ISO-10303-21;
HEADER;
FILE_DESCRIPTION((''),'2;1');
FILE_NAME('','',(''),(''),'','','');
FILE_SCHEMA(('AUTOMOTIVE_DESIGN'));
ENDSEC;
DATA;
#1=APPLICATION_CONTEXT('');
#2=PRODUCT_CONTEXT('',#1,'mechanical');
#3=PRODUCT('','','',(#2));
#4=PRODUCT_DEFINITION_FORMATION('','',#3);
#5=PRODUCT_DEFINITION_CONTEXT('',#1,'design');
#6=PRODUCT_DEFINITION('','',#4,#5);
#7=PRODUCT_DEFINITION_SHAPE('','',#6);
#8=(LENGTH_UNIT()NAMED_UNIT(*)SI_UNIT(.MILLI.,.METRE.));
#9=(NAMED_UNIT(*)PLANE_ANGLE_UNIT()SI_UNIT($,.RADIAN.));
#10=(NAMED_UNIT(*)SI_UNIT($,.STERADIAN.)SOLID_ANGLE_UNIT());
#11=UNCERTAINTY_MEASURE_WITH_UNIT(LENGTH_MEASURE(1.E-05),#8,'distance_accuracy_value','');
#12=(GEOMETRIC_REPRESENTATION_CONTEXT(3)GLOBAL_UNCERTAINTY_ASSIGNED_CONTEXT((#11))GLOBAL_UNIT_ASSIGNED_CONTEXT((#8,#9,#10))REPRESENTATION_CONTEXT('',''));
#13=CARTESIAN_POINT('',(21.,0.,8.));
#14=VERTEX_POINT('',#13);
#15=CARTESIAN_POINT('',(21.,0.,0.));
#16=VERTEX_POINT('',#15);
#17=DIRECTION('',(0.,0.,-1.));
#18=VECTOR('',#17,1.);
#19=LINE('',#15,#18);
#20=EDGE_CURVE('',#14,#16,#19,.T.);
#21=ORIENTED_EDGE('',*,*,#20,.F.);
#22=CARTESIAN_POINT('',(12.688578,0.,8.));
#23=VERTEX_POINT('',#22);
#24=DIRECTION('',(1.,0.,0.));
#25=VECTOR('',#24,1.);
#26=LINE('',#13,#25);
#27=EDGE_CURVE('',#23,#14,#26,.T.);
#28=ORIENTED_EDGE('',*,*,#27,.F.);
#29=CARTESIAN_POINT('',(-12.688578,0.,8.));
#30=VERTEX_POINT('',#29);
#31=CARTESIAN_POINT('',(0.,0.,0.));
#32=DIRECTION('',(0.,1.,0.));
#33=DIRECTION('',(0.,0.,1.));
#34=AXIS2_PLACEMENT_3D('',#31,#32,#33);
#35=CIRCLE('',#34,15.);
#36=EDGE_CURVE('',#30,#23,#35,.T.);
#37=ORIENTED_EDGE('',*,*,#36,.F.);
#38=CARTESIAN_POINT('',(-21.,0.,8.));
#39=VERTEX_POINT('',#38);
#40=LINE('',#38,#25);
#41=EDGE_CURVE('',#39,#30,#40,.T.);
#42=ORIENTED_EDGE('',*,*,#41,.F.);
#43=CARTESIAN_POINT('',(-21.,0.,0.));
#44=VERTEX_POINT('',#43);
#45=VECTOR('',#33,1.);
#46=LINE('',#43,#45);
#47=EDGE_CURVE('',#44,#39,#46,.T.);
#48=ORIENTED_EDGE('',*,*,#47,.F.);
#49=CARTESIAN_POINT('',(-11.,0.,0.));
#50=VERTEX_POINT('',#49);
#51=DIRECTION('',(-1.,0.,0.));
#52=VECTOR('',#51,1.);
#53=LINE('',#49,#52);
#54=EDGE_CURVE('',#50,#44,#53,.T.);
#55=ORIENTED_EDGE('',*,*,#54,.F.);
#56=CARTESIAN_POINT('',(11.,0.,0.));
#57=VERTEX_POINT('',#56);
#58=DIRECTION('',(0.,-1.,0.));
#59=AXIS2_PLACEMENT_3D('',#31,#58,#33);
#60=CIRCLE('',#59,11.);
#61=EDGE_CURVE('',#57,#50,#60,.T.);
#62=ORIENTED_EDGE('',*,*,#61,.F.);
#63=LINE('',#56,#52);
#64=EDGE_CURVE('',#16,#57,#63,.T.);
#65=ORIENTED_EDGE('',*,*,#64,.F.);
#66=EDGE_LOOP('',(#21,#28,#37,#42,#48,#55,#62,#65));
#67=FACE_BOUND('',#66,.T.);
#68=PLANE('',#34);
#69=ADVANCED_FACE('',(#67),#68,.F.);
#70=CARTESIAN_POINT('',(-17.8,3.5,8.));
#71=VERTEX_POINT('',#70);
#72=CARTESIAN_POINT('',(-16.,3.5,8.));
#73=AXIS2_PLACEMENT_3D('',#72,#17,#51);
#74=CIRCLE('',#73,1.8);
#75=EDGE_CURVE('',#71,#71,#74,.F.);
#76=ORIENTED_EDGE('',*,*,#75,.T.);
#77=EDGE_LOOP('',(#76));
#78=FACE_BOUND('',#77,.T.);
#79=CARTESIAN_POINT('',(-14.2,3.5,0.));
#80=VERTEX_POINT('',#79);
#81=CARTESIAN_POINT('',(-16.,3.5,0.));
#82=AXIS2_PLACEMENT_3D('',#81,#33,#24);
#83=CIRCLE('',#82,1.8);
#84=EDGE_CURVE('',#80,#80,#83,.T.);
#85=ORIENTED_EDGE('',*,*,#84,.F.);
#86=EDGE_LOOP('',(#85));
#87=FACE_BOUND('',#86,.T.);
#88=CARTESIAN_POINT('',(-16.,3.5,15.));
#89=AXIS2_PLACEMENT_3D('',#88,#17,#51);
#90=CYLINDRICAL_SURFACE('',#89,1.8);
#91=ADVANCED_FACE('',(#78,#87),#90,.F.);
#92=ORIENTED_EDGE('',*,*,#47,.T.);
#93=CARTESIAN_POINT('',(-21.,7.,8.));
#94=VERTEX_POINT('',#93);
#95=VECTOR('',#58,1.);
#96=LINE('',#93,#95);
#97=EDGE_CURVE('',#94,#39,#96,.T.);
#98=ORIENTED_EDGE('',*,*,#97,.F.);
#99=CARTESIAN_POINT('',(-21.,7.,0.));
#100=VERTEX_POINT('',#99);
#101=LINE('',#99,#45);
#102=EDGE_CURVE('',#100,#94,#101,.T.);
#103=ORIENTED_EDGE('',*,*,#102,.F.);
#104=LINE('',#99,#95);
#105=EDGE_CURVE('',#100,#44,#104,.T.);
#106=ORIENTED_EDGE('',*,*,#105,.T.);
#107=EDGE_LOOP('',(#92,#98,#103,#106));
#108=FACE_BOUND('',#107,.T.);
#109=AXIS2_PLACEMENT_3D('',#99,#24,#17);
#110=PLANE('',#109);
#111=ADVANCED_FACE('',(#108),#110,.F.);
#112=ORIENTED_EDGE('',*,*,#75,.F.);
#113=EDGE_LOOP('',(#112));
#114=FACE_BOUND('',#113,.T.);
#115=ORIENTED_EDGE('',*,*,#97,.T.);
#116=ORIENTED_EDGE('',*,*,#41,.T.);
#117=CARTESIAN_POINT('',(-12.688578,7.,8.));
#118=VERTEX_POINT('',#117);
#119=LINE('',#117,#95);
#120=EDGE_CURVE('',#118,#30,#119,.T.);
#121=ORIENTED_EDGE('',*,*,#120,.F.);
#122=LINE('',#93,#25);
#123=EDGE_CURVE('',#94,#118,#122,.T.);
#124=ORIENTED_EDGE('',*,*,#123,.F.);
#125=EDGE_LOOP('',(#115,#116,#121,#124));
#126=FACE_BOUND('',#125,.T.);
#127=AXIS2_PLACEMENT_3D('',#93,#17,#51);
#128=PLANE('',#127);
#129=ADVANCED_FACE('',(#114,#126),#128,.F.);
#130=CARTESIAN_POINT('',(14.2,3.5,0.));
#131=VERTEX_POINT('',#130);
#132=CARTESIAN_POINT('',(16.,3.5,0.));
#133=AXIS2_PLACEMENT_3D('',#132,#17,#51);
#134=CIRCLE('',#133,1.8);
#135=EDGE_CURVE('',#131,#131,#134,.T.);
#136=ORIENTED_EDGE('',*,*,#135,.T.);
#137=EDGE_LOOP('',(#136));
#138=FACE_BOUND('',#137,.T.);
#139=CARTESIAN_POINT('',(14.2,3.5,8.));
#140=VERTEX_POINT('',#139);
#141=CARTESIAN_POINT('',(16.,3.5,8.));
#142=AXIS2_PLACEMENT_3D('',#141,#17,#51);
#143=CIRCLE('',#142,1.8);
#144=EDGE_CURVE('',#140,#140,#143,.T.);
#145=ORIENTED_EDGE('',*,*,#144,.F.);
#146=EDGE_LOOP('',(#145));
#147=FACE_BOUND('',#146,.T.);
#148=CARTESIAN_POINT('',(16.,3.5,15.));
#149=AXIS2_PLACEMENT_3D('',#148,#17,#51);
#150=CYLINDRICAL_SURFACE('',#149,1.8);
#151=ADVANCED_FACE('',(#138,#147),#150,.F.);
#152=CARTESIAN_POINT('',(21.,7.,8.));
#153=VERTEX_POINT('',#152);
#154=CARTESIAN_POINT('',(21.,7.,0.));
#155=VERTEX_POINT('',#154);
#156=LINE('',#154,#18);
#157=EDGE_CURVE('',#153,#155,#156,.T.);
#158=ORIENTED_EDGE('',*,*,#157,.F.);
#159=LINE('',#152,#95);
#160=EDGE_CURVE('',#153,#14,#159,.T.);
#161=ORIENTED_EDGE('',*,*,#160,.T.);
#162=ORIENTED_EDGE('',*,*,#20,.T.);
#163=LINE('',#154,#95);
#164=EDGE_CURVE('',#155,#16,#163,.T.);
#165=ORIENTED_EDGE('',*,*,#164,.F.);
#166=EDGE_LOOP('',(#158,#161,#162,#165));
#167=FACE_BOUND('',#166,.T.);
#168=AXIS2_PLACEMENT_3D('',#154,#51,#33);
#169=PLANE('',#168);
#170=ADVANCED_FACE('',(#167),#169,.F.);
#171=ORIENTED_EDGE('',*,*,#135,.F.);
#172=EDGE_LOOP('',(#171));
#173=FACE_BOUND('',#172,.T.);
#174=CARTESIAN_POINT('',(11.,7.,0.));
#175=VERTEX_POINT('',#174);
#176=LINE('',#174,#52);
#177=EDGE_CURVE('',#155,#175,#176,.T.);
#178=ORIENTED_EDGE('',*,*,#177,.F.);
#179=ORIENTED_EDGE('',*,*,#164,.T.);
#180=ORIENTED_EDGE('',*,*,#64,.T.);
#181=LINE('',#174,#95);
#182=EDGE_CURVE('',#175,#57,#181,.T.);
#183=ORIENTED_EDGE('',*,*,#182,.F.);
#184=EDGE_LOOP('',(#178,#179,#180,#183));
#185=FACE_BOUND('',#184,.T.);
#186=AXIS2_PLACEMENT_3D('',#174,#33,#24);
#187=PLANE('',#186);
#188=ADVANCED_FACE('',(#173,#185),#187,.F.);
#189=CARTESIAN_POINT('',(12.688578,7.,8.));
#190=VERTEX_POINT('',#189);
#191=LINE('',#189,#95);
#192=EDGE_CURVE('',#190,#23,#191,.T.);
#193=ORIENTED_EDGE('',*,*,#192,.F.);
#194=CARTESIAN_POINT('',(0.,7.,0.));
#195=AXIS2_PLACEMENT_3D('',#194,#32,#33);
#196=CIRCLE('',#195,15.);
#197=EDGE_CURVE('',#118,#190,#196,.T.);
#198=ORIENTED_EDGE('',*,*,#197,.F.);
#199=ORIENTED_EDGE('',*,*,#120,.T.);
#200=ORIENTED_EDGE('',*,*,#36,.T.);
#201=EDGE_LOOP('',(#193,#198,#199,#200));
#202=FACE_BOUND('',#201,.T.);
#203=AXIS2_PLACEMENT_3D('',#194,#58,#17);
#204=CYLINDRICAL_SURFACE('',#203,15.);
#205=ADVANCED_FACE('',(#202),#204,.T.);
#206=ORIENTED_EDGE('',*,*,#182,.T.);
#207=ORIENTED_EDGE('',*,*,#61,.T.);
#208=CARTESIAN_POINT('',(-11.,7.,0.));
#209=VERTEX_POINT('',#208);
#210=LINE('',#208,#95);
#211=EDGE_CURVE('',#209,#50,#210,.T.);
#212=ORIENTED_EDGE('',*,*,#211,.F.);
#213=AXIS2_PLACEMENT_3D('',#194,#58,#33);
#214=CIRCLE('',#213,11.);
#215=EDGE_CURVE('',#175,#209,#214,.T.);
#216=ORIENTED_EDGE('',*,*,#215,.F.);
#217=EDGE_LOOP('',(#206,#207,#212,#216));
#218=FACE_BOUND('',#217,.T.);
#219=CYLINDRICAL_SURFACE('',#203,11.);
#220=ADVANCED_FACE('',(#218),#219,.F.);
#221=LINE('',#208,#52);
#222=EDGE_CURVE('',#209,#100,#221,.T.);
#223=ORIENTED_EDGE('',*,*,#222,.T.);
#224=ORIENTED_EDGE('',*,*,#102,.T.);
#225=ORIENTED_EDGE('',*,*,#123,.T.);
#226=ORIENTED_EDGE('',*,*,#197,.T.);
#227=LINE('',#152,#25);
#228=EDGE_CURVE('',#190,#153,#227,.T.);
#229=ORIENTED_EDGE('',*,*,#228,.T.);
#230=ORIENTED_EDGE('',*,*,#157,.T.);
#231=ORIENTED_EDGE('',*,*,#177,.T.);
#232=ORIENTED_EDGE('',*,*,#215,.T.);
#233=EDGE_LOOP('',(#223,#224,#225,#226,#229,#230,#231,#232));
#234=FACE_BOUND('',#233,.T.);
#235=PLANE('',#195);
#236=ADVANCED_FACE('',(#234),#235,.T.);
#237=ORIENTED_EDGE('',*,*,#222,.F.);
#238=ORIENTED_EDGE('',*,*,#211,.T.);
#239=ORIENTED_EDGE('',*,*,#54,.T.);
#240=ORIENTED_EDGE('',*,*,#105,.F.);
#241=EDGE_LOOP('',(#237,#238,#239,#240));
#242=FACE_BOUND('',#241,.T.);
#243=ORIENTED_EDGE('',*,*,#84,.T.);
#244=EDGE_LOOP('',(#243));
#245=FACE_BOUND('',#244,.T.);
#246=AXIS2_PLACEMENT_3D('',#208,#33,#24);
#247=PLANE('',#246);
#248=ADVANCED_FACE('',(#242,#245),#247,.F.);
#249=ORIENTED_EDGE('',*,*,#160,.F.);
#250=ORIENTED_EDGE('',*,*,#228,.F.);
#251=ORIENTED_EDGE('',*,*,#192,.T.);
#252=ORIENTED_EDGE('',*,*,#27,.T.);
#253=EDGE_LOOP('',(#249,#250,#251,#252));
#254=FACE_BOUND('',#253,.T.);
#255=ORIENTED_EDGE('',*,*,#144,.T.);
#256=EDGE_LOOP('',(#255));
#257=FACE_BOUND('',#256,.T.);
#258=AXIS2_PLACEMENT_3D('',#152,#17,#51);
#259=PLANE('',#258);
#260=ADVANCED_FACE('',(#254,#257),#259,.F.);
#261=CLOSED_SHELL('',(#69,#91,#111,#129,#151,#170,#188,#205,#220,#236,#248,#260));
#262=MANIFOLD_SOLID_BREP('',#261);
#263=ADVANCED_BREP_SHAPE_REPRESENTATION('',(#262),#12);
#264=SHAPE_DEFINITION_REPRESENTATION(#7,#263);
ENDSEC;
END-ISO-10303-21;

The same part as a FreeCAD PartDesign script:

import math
import FreeCAD as App
import Part
import Sketcher

doc = App.newDocument("Part")
params = doc.addObject("Spreadsheet::Sheet", "Params")
for row, (alias, value) in enumerate([
    ("sketch1_radius", "15 mm"),
    ("sketch1_radius2", "11 mm"),
    ("sketch1_width", "10 mm"),
    ("sketch1_height", "8 mm"),
    ("pad1_length", "7 mm"),
    ("sketch2_diameter", "3.6 mm"),
    ("pocket1_length", "55.478968 mm"),
], start=1):
    params.set(f"A{row}", alias)
    params.set(f"B{row}", "=" + value)
    params.setAlias(f"B{row}", alias)

body = doc.addObject("PartDesign::Body", "Body")

# Sketch on XZ plane
sketch1 = body.newObject("Sketcher::SketchObject", "Sketch")
sketch1.AttachmentSupport = (doc.getObject("XZ_Plane"), [""])
sketch1.MapMode = "FlatFace"
sketch1.addGeometry([
    Part.LineSegment(App.Vector(-11, 0, 0), App.Vector(-21, 0, 0)),  # 0
    Part.LineSegment(App.Vector(-21, 0, 0), App.Vector(-21, 8, 0)),  # 1
    Part.LineSegment(App.Vector(-21, 8, 0), App.Vector(-13, 8, 0)),  # 2
    Part.ArcOfCircle(Part.Circle(App.Vector(0, 0, 0), App.Vector(0, 0, 1), 15), math.radians(32), math.radians(148)),  # 3
    Part.LineSegment(App.Vector(13, 8, 0), App.Vector(21, 8, 0)),  # 4
    Part.LineSegment(App.Vector(21, 8, 0), App.Vector(21, 0, 0)),  # 5
    Part.LineSegment(App.Vector(21, 0, 0), App.Vector(11, 0, 0)),  # 6
    Part.ArcOfCircle(Part.Circle(App.Vector(0, 0, 0), App.Vector(0, 0, 1), 11), math.radians(0), math.radians(180)),  # 7
], False)
sketch1.addConstraint([
    Sketcher.Constraint("Coincident", 0, 2, 1, 1),
    Sketcher.Constraint("Coincident", 1, 2, 2, 1),
    Sketcher.Constraint("Coincident", 2, 2, 3, 2),
    Sketcher.Constraint("Coincident", 3, 1, 4, 1),
    Sketcher.Constraint("Coincident", 4, 2, 5, 1),
    Sketcher.Constraint("Coincident", 5, 2, 6, 1),
    Sketcher.Constraint("Coincident", 6, 2, 7, 1),
    Sketcher.Constraint("Coincident", 7, 2, 0, 1),
    Sketcher.Constraint("Horizontal", 0),
    Sketcher.Constraint("Vertical", 1),
    Sketcher.Constraint("Horizontal", 2),
    Sketcher.Constraint("Horizontal", 4),
    Sketcher.Constraint("Vertical", 5),
    Sketcher.Constraint("Horizontal", 6),
    Sketcher.Constraint("Coincident", 3, 3, -1, 1),
    Sketcher.Constraint("Coincident", 7, 3, -1, 1),
    Sketcher.Constraint("Symmetric", 0, 2, 5, 2, -1, 1),
    Sketcher.Constraint("PointOnObject", 0, 2, -1),
    Sketcher.Constraint("Horizontal", 2, 2, 3, 1),
    Sketcher.Constraint("Radius", 3, 15.0),
    Sketcher.Constraint("Radius", 7, 11.0),
    Sketcher.Constraint("DistanceX", 0, 2, 0, 1, 10.0),
    Sketcher.Constraint("DistanceY", 1, 1, 1, 2, 8.0),
])
sketch1.setExpression("Constraints[19]", "Params.sketch1_radius")
sketch1.setExpression("Constraints[20]", "Params.sketch1_radius2")
sketch1.setExpression("Constraints[21]", "Params.sketch1_width")
sketch1.setExpression("Constraints[22]", "Params.sketch1_height")
pad1 = body.newObject("PartDesign::Pad", "Pad")
pad1.Profile = sketch1
pad1.setExpression("Length", "Params.pad1_length")
pad1.Reversed = True

# Sketch on XY plane
sketch2 = body.newObject("Sketcher::SketchObject", "Sketch001")
sketch2.AttachmentSupport = (doc.getObject("XY_Plane"), [""])
sketch2.MapMode = "FlatFace"
sketch2.addGeometry(Part.Circle(App.Vector(16, 3.5, 0), App.Vector(0, 0, 1), 1.8), False)
sketch2.addConstraint([
    Sketcher.Constraint("Diameter", 0, 3.6),
    Sketcher.Constraint("DistanceX", -1, 1, 0, 3, 16.0),
    Sketcher.Constraint("DistanceY", -1, 1, 0, 3, 3.5),
])
sketch2.setExpression("Constraints[0]", "Params.sketch2_diameter")
pocket1 = body.newObject("PartDesign::Pocket", "Pocket")
pocket1.Profile = sketch2
pocket1.setExpression("Length", "Params.pocket1_length")
pocket1.Midplane = True
doc.recompute()

mirrored = body.newObject("PartDesign::Mirrored", "Mirrored")
mirrored.Originals = [pocket1]
mirrored.MirrorPlane = (doc.getObject("YZ_Plane"), [""])
body.Tip = mirrored

doc.recompute()
